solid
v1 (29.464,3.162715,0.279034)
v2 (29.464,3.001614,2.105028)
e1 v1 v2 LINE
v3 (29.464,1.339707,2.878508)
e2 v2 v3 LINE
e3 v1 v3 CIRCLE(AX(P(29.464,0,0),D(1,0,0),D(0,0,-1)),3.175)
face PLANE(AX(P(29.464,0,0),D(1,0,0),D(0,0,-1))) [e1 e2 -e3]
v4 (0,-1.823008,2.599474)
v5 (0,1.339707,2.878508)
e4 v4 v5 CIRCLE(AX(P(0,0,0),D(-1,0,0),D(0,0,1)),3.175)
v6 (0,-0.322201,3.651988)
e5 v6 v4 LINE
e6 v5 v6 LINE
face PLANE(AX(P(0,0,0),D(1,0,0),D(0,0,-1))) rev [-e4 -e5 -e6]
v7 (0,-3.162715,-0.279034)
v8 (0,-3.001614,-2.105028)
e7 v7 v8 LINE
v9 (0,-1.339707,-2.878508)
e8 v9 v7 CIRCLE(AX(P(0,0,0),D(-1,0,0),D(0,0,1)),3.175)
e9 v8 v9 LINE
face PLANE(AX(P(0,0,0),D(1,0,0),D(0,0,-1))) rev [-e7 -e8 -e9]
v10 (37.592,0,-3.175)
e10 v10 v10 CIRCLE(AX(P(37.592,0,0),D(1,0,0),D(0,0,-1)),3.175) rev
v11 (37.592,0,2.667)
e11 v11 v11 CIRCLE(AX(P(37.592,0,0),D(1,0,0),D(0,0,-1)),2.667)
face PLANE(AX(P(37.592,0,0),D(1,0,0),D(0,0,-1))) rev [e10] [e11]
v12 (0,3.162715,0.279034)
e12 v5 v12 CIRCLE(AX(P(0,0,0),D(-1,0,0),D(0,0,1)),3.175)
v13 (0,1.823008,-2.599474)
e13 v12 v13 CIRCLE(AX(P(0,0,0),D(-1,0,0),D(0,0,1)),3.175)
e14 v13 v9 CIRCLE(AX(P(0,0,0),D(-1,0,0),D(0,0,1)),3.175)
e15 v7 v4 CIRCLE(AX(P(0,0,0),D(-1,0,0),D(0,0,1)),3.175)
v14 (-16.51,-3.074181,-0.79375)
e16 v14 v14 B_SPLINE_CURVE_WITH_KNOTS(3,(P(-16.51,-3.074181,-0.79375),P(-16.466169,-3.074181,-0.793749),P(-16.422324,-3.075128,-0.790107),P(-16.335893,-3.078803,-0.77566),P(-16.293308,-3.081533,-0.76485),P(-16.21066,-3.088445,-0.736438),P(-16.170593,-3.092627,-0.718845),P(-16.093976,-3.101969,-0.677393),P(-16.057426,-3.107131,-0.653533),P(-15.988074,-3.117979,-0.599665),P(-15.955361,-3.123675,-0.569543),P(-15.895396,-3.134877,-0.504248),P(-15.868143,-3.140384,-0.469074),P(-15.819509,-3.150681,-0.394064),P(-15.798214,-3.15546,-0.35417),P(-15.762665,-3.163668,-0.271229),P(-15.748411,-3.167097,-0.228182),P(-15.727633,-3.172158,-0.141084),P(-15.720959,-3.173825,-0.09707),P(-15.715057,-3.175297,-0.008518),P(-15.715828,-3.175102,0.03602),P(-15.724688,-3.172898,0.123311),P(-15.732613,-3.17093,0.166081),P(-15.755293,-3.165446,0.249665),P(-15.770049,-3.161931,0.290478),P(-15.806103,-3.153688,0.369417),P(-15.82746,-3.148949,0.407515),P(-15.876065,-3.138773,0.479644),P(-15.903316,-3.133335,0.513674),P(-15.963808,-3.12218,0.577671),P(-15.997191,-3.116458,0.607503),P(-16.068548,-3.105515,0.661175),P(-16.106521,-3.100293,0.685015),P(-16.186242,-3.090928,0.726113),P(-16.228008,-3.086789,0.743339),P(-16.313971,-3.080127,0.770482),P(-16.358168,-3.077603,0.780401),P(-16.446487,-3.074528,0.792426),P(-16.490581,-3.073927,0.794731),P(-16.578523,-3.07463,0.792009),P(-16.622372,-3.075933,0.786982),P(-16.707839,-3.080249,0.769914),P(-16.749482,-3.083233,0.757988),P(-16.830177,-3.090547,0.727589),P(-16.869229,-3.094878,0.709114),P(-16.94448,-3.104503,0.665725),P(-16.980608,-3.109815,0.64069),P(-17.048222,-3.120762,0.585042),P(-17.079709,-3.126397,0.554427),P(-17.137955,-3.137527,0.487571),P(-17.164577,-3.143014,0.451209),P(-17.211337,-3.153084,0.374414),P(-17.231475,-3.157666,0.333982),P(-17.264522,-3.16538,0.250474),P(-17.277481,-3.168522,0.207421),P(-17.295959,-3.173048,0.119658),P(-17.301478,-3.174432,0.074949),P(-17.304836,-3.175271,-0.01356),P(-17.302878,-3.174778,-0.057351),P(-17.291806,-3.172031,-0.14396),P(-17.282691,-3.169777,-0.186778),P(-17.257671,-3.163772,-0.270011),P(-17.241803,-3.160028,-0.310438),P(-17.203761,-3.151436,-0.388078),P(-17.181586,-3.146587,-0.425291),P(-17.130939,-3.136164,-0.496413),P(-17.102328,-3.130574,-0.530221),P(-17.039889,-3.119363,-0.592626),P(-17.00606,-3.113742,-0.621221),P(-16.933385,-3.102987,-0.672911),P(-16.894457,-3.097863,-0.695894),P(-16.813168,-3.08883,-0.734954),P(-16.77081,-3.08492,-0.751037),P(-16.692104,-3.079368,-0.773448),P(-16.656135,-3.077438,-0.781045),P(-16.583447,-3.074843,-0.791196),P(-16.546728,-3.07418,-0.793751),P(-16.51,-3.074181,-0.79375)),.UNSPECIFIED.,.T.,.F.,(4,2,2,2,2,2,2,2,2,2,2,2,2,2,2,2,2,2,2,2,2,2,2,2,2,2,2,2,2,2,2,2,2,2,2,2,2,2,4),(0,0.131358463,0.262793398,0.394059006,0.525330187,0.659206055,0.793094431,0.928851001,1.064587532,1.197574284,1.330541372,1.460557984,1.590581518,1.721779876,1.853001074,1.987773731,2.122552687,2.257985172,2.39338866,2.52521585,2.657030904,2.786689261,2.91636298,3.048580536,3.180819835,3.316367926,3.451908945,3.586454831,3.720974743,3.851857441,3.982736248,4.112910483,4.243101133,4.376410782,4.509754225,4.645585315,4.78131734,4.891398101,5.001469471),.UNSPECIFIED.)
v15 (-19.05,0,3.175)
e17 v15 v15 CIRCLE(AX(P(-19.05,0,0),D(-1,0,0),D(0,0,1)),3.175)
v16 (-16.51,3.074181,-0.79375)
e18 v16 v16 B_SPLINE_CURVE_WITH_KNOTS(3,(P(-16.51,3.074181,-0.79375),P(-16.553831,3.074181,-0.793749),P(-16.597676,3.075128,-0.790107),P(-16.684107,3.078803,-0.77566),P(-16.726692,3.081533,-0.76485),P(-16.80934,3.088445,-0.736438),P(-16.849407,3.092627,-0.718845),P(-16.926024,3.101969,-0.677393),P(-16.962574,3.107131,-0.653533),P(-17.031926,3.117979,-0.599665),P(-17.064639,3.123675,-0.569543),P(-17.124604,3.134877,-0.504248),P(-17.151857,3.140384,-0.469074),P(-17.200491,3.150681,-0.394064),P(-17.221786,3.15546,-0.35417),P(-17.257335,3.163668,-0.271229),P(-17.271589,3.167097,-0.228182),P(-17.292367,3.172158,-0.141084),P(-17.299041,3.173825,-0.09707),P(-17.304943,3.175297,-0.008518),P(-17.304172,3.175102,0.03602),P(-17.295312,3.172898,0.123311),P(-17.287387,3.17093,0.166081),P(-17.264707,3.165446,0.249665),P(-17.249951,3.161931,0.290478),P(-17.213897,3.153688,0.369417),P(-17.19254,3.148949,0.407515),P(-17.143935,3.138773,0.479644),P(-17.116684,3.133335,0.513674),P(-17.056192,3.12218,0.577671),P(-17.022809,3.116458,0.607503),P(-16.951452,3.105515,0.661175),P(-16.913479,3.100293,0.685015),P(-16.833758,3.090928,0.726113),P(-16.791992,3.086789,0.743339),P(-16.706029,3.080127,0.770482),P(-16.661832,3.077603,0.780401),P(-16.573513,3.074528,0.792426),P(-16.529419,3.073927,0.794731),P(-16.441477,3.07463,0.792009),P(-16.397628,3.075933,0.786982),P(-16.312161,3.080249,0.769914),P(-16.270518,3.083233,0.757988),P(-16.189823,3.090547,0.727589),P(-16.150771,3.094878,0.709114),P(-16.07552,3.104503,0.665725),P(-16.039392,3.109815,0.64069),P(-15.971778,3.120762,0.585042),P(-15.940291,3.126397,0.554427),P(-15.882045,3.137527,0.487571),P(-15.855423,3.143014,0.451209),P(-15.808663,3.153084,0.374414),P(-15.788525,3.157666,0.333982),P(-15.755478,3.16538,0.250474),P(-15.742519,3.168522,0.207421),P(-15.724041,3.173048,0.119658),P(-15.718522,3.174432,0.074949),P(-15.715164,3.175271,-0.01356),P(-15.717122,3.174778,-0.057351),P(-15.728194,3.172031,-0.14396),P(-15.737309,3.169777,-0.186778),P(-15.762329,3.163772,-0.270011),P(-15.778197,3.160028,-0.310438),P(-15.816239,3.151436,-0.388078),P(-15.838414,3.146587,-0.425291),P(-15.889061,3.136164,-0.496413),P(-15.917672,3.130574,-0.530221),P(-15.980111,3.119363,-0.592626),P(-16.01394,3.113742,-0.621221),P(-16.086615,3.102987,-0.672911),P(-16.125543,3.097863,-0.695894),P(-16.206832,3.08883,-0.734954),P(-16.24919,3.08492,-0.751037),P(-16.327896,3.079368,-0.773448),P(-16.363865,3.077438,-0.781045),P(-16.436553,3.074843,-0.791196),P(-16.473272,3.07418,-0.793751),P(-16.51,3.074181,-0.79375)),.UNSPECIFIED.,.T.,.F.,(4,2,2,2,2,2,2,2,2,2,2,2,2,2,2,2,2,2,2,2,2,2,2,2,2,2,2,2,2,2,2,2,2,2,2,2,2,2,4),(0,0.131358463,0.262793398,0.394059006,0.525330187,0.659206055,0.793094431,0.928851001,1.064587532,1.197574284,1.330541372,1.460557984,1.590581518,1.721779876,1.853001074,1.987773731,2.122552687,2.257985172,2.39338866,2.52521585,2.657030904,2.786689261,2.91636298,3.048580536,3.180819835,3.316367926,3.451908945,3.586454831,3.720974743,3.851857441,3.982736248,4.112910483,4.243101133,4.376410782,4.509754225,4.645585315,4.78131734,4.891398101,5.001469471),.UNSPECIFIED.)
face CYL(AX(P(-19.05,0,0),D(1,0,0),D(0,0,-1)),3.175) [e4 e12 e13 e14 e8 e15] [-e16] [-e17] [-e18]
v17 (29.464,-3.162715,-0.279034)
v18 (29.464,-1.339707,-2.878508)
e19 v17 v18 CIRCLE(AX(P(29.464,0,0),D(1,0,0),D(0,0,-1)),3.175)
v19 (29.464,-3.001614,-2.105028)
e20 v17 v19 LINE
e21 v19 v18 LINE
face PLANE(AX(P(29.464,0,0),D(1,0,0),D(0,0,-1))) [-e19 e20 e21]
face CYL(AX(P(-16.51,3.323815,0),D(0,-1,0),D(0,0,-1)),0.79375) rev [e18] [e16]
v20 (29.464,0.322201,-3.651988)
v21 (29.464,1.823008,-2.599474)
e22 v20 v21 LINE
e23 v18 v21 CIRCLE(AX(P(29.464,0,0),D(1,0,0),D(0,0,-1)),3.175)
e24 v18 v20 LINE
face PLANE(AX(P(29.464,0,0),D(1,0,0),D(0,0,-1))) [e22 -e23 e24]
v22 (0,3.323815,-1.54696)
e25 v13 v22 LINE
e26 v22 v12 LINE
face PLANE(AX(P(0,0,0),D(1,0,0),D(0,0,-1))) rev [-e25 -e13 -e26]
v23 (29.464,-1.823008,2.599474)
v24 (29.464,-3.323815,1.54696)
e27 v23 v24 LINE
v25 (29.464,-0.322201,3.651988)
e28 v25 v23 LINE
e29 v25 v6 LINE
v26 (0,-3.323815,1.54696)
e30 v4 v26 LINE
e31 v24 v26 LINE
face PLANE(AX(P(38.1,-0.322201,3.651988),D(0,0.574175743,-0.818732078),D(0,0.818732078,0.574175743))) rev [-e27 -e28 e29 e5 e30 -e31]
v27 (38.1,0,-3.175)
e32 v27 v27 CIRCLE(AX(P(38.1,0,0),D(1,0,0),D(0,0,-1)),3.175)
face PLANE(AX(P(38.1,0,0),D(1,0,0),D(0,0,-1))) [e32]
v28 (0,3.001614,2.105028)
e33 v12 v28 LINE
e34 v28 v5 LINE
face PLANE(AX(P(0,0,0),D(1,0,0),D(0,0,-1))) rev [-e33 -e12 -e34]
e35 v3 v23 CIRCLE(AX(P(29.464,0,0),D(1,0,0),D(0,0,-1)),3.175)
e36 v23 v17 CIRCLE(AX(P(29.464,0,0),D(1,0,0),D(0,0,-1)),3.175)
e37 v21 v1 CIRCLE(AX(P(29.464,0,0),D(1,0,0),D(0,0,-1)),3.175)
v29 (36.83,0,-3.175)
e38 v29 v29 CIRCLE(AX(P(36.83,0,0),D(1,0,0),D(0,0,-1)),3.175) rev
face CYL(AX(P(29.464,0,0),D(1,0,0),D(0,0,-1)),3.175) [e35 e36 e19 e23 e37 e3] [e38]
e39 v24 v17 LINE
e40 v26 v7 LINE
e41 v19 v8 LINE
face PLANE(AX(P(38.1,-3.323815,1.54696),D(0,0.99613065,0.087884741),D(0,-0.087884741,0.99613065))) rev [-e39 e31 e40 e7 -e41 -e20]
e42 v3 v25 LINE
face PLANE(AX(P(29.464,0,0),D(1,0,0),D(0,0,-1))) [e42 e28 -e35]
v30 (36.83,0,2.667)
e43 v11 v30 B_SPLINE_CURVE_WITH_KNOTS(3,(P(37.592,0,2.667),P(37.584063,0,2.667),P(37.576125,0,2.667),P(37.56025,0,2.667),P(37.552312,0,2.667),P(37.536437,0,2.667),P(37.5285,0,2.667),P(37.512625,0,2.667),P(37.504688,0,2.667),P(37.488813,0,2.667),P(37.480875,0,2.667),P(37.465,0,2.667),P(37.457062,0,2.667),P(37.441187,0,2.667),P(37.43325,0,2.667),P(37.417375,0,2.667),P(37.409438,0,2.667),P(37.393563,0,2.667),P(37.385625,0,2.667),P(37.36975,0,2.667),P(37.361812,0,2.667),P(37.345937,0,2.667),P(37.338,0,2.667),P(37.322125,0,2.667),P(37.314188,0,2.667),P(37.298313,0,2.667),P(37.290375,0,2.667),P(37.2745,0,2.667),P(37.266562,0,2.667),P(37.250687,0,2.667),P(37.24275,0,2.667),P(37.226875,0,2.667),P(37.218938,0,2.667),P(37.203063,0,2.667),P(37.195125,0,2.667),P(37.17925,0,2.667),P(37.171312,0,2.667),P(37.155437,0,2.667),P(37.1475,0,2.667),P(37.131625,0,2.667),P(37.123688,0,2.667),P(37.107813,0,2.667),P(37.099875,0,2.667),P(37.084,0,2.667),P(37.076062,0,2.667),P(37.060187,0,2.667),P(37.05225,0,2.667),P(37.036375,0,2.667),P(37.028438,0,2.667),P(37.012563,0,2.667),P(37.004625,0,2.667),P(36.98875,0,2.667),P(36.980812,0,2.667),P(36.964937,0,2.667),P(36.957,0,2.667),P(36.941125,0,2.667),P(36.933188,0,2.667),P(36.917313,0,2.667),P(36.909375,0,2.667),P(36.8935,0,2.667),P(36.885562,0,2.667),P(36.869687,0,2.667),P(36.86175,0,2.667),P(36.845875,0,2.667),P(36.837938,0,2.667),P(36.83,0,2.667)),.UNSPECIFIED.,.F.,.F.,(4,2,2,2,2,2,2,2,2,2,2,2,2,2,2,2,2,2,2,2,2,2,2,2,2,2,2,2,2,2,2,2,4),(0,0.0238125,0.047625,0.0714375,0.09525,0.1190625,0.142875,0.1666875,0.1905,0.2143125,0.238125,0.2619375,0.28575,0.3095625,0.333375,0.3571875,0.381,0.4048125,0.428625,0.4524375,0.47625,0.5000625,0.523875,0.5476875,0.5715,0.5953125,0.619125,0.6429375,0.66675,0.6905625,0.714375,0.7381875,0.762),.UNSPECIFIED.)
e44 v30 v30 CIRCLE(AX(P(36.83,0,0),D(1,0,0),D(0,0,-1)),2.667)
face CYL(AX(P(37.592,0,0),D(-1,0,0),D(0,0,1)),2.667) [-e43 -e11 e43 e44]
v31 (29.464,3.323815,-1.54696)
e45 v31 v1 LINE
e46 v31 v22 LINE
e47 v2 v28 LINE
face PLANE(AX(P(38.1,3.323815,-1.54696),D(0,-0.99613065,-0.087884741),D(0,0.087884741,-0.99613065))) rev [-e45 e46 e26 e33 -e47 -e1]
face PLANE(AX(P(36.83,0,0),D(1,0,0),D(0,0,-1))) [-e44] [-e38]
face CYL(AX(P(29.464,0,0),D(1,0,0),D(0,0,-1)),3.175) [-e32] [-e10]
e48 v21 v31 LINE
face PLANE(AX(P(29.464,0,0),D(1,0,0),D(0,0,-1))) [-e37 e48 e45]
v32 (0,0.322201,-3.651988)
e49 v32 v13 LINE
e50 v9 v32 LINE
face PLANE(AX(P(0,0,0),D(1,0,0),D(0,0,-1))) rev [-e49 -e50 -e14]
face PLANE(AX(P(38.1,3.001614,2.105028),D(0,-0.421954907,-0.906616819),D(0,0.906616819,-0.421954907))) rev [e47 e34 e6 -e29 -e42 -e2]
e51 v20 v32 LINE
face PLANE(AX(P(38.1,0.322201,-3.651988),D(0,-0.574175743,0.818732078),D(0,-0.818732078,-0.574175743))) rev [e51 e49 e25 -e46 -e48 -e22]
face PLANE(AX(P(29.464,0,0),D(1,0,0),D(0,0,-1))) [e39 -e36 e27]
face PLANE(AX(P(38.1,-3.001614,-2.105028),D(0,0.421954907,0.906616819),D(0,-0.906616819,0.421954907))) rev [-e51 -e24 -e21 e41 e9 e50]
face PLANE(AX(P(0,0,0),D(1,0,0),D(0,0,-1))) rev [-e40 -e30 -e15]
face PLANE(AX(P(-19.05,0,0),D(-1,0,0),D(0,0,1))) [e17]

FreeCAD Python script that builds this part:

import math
import FreeCAD as App
import Part
import Sketcher
Q = App.Units.Quantity

doc = App.newDocument("Part")
body = doc.addObject("PartDesign::Body", "Body")

sketch1 = body.newObject("Sketcher::SketchObject", "Sketch")
sketch1.AttachmentSupport = (doc.getObject("YZ_Plane"), [""])
sketch1.MapMode = "FlatFace"
sketch1.addGeometry([
    Part.LineSegment(App.Vector(-3, -2.1, 0), App.Vector(0.3, -3.7, 0)),
    Part.LineSegment(App.Vector(0.3, -3.7, 0), App.Vector(3.3, -1.5, 0)),
    Part.LineSegment(App.Vector(3.3, -1.5, 0), App.Vector(3, 2.1, 0)),
    Part.LineSegment(App.Vector(3, 2.1, 0), App.Vector(-0.3, 3.7, 0)),
    Part.LineSegment(App.Vector(-0.3, 3.7, 0), App.Vector(-3.3, 1.5, 0)),
    Part.LineSegment(App.Vector(-3.3, 1.5, 0), App.Vector(-3, -2.1, 0)),
], False)
sketch1.addConstraint([
    Sketcher.Constraint("Coincident", 0, 2, 1, 1),
    Sketcher.Constraint("Coincident", 1, 2, 2, 1),
    Sketcher.Constraint("Coincident", 2, 2, 3, 1),
    Sketcher.Constraint("Coincident", 3, 2, 4, 1),
    Sketcher.Constraint("Coincident", 4, 2, 5, 1),
    Sketcher.Constraint("Coincident", 5, 2, 0, 1),
    Sketcher.Constraint("Symmetric", 0, 2, 3, 2, -1, 1),
    Sketcher.Constraint("Symmetric", 1, 2, 4, 2, -1, 1),
    Sketcher.Constraint("Symmetric", 2, 2, 5, 2, -1, 1),
    Sketcher.Constraint("Equal", 0, 1),
    Sketcher.Constraint("Equal", 1, 2),
    Sketcher.Constraint("DistanceX", -1, 1, 0, 2, Q("0.322201 mm")),
    Sketcher.Constraint("DistanceX", 2, 2, 1, 2, Q("0.322201 mm")),
    Sketcher.Constraint("DistanceY", 0, 2, -1, 1, Q("3.651988 mm")),
    Sketcher.Constraint("DistanceY", 1, 2, -1, 1, Q("1.54696 mm")),
])
pad1 = body.newObject("PartDesign::Pad", "Pad")
pad1.Profile = sketch1
pad1.Length = Q("1.5 in")

sketch2 = body.newObject("Sketcher::SketchObject", "Sketch001")
sketch2.AttachmentSupport = (doc.getObject("YZ_Plane"), [""])
sketch2.MapMode = "FlatFace"
sketch2.addGeometry(Part.Circle(App.Vector(0, 0, 0), App.Vector(0, 0, 1), 3.2), False)
sketch2.addConstraint([
    Sketcher.Constraint("Coincident", 0, 3, -1, 1),
    Sketcher.Constraint("Diameter", 0, Q("0.25 in")),
])
pad2 = body.newObject("PartDesign::Pad", "Pad001")
pad2.Profile = sketch2
pad2.Length = Q("0.75 in")
pad2.Reversed = True

sketch3 = body.newObject("Sketcher::SketchObject", "Sketch002")
sketch3.AttachmentSupport = (doc.getObject("XZ_Plane"), [""])
sketch3.MapMode = "FlatFace"
sketch3.addGeometry(Part.Circle(App.Vector(-16.5, 0, 0), App.Vector(0, 0, 1), 0.8), False)
sketch3.addConstraint([
    Sketcher.Constraint("PointOnObject", 0, 3, -1),
    Sketcher.Constraint("Diameter", 0, Q("0.0625 in")),
    Sketcher.Constraint("DistanceX", 0, 3, -1, 1, Q("0.65 in")),
])
pocket1 = body.newObject("PartDesign::Pocket", "Pocket")
pocket1.Profile = sketch3
pocket1.Type = "ThroughAll"
pocket1.Midplane = True

sketch4 = body.newObject("Sketcher::SketchObject", "Sketch003")
sketch4.AttachmentSupport = (doc.getObject("YZ_Plane"), [""])
sketch4.MapMode = "FlatFace"
sketch4.AttachmentOffset = App.Placement(App.Vector(0, 0, 1.5 * 25.4), App.Rotation())
sketch4.addGeometry([
    Part.ArcOfCircle(Part.Circle(App.Vector(0, 0, 0), App.Vector(0, 0, 1), 3.67), math.radians(-25), math.radians(35)),
    Part.ArcOfCircle(Part.Circle(App.Vector(0, 0, 0), App.Vector(0, 0, 1), 3.67), math.radians(35), math.radians(95)),
    Part.ArcOfCircle(Part.Circle(App.Vector(0, 0, 0), App.Vector(0, 0, 1), 3.67), math.radians(95), math.radians(155)),
    Part.ArcOfCircle(Part.Circle(App.Vector(0, 0, 0), App.Vector(0, 0, 1), 3.67), math.radians(155), math.radians(215)),
    Part.ArcOfCircle(Part.Circle(App.Vector(0, 0, 0), App.Vector(0, 0, 1), 3.67), math.radians(-145), math.radians(-90)),
    Part.ArcOfCircle(Part.Circle(App.Vector(0, 0, 0), App.Vector(0, 0, 1), 3.67), math.radians(-90), math.radians(-84.96)),
    Part.ArcOfCircle(Part.Circle(App.Vector(0, 0, 0), App.Vector(0, 0, 1), 3.67), math.radians(-85), math.radians(-25)),
    Part.ArcOfCircle(Part.Circle(App.Vector(0, 0, 0), App.Vector(0, 0, 1), 3.18), math.radians(65), math.radians(125)),
    Part.ArcOfCircle(Part.Circle(App.Vector(0, 0, 0), App.Vector(0, 0, 1), 3.17), math.radians(5), math.radians(65)),
    Part.ArcOfCircle(Part.Circle(App.Vector(0, 0, 0), App.Vector(0, 0, 1), 3.17), math.radians(-55), math.radians(5)),
    Part.ArcOfCircle(Part.Circle(App.Vector(0, 0, 0), App.Vector(0, 0, 1), 3.17), math.radians(-90), math.radians(-55)),
    Part.ArcOfCircle(Part.Circle(App.Vector(0, 0, 0), App.Vector(0, 0, 1), 3.18), math.radians(-115), math.radians(-90)),
    Part.ArcOfCircle(Part.Circle(App.Vector(0, 0, 0), App.Vector(0, 0, 1), 3.17), math.radians(-175), math.radians(-115)),
    Part.ArcOfCircle(Part.Circle(App.Vector(0, 0, 0), App.Vector(0, 0, 1), 3.17), math.radians(125), math.radians(185)),
], False)
sketch4.addConstraint([
    Sketcher.Constraint("Tangent", 0, 2, 1, 1),
    Sketcher.Constraint("Tangent", 1, 2, 2, 1),
    Sketcher.Constraint("Tangent", 2, 2, 3, 1),
    Sketcher.Constraint("Tangent", 3, 2, 4, 1),
    Sketcher.Constraint("Tangent", 4, 2, 5, 1),
    Sketcher.Constraint("Tangent", 5, 2, 6, 1),
    Sketcher.Constraint("Tangent", 6, 2, 0, 1),
    Sketcher.Constraint("Tangent", 7, 1, 8, 2),
    Sketcher.Constraint("Tangent", 8, 1, 9, 2),
    Sketcher.Constraint("Tangent", 9, 1, 10, 2),
    Sketcher.Constraint("Tangent", 10, 1, 11, 2),
    Sketcher.Constraint("Tangent", 11, 1, 12, 2),
    Sketcher.Constraint("Tangent", 12, 1, 13, 2),
    Sketcher.Constraint("Tangent", 13, 1, 7, 2),
    Sketcher.Constraint("Coincident", 0, 3, -1, 1),
    Sketcher.Constraint("Coincident", 2, 3, -1, 1),
    Sketcher.Constraint("Coincident", 4, 3, -1, 1),
    Sketcher.Constraint("Coincident", 7, 3, -1, 1),
    Sketcher.Constraint("Coincident", 9, 3, -1, 1),
    Sketcher.Constraint("Coincident", 11, 3, -1, 1),
    Sketcher.Constraint("PointOnObject", 4, 2, -2),
    Sketcher.Constraint("PointOnObject", 10, 1, -2),
    Sketcher.Constraint("Radius", 7, Q("0.125 in")),
    Sketcher.Constraint("Radius", 0, Q("3.666174 mm")),
    Sketcher.Constraint("DistanceX", 1, 2, -1, 1, Q("0.322201 mm")),
    Sketcher.Constraint("DistanceX", -1, 1, 5, 2, Q("0.322201 mm")),
    Sketcher.Constraint("DistanceX", 0, 2, 8, 1, Q("0.1611 mm")),
    Sketcher.Constraint("DistanceX", 8, 1, 6, 2, Q("0.1611 mm")),
    Sketcher.Constraint("DistanceY", 4, 2, 9, 1, Q("1.0667 mm")),
    Sketcher.Constraint("DistanceX", 12, 1, 3, 2, Q("0.1611 mm")),
    Sketcher.Constraint("DistanceX", 2, 2, 12, 1, Q("0.1611 mm")),
    Sketcher.Constraint("DistanceY", -1, 1, 0, 2, Q("2.105028 mm")),
    Sketcher.Constraint("DistanceY", -1, 1, 2, 2, Q("1.54696 mm")),
    Sketcher.Constraint("DistanceY", -1, 1, 7, 1, Q("2.878508 mm")),
    Sketcher.Constraint("DistanceY", 11, 1, -1, 1, Q("2.878508 mm")),
    Sketcher.Constraint("DistanceX", 13, 1, -1, 1, Q("1.823008 mm")),
])
pocket2 = body.newObject("PartDesign::Pocket", "Pocket001")
pocket2.Profile = sketch4
pocket2.Length = Q("0.34 in")

sketch5 = body.newObject("Sketcher::SketchObject", "Sketch004")
sketch5.AttachmentSupport = (doc.getObject("YZ_Plane"), [""])
sketch5.MapMode = "FlatFace"
sketch5.AttachmentOffset = App.Placement(App.Vector(0, 0, 1.45 * 25.4), App.Rotation())
sketch5.addGeometry([
    Part.LineSegment(App.Vector(10.1, 10.5, 0), App.Vector(-10.1, 10.5, 0)),
    Part.LineSegment(App.Vector(-10.1, 10.5, 0), App.Vector(-10.1, -10.5, 0)),
    Part.LineSegment(App.Vector(-10.1, -10.5, 0), App.Vector(10.1, -10.5, 0)),
    Part.LineSegment(App.Vector(10.1, -10.5, 0), App.Vector(10.1, 10.5, 0)),
    Part.Circle(App.Vector(0, 0, 0), App.Vector(0, 0, 1), 2.7),
], False)
sketch5.addConstraint([
    Sketcher.Constraint("Coincident", 0, 2, 1, 1),
    Sketcher.Constraint("Coincident", 1, 2, 2, 1),
    Sketcher.Constraint("Coincident", 2, 2, 3, 1),
    Sketcher.Constraint("Coincident", 3, 2, 0, 1),
    Sketcher.Constraint("Horizontal", 0),
    Sketcher.Constraint("Vertical", 1),
    Sketcher.Constraint("Horizontal", 2),
    Sketcher.Constraint("Vertical", 3),
    Sketcher.Constraint("Coincident", 4, 3, -1, 1),
    Sketcher.Constraint("Symmetric", 0, 2, 2, 2, -1, 1),
    Sketcher.Constraint("Diameter", 4, Q("0.21 in")),
    Sketcher.Constraint("DistanceX", 0, 2, 0, 1, Q("20.248 mm")),
    Sketcher.Constraint("DistanceY", 1, 2, 1, 1, Q("20.904 mm")),
])
pocket3 = body.newObject("PartDesign::Pocket", "Pocket002")
pocket3.Profile = sketch5
pocket3.Length = Q("0.03 in")
pocket3.Reversed = True

doc.recompute()
